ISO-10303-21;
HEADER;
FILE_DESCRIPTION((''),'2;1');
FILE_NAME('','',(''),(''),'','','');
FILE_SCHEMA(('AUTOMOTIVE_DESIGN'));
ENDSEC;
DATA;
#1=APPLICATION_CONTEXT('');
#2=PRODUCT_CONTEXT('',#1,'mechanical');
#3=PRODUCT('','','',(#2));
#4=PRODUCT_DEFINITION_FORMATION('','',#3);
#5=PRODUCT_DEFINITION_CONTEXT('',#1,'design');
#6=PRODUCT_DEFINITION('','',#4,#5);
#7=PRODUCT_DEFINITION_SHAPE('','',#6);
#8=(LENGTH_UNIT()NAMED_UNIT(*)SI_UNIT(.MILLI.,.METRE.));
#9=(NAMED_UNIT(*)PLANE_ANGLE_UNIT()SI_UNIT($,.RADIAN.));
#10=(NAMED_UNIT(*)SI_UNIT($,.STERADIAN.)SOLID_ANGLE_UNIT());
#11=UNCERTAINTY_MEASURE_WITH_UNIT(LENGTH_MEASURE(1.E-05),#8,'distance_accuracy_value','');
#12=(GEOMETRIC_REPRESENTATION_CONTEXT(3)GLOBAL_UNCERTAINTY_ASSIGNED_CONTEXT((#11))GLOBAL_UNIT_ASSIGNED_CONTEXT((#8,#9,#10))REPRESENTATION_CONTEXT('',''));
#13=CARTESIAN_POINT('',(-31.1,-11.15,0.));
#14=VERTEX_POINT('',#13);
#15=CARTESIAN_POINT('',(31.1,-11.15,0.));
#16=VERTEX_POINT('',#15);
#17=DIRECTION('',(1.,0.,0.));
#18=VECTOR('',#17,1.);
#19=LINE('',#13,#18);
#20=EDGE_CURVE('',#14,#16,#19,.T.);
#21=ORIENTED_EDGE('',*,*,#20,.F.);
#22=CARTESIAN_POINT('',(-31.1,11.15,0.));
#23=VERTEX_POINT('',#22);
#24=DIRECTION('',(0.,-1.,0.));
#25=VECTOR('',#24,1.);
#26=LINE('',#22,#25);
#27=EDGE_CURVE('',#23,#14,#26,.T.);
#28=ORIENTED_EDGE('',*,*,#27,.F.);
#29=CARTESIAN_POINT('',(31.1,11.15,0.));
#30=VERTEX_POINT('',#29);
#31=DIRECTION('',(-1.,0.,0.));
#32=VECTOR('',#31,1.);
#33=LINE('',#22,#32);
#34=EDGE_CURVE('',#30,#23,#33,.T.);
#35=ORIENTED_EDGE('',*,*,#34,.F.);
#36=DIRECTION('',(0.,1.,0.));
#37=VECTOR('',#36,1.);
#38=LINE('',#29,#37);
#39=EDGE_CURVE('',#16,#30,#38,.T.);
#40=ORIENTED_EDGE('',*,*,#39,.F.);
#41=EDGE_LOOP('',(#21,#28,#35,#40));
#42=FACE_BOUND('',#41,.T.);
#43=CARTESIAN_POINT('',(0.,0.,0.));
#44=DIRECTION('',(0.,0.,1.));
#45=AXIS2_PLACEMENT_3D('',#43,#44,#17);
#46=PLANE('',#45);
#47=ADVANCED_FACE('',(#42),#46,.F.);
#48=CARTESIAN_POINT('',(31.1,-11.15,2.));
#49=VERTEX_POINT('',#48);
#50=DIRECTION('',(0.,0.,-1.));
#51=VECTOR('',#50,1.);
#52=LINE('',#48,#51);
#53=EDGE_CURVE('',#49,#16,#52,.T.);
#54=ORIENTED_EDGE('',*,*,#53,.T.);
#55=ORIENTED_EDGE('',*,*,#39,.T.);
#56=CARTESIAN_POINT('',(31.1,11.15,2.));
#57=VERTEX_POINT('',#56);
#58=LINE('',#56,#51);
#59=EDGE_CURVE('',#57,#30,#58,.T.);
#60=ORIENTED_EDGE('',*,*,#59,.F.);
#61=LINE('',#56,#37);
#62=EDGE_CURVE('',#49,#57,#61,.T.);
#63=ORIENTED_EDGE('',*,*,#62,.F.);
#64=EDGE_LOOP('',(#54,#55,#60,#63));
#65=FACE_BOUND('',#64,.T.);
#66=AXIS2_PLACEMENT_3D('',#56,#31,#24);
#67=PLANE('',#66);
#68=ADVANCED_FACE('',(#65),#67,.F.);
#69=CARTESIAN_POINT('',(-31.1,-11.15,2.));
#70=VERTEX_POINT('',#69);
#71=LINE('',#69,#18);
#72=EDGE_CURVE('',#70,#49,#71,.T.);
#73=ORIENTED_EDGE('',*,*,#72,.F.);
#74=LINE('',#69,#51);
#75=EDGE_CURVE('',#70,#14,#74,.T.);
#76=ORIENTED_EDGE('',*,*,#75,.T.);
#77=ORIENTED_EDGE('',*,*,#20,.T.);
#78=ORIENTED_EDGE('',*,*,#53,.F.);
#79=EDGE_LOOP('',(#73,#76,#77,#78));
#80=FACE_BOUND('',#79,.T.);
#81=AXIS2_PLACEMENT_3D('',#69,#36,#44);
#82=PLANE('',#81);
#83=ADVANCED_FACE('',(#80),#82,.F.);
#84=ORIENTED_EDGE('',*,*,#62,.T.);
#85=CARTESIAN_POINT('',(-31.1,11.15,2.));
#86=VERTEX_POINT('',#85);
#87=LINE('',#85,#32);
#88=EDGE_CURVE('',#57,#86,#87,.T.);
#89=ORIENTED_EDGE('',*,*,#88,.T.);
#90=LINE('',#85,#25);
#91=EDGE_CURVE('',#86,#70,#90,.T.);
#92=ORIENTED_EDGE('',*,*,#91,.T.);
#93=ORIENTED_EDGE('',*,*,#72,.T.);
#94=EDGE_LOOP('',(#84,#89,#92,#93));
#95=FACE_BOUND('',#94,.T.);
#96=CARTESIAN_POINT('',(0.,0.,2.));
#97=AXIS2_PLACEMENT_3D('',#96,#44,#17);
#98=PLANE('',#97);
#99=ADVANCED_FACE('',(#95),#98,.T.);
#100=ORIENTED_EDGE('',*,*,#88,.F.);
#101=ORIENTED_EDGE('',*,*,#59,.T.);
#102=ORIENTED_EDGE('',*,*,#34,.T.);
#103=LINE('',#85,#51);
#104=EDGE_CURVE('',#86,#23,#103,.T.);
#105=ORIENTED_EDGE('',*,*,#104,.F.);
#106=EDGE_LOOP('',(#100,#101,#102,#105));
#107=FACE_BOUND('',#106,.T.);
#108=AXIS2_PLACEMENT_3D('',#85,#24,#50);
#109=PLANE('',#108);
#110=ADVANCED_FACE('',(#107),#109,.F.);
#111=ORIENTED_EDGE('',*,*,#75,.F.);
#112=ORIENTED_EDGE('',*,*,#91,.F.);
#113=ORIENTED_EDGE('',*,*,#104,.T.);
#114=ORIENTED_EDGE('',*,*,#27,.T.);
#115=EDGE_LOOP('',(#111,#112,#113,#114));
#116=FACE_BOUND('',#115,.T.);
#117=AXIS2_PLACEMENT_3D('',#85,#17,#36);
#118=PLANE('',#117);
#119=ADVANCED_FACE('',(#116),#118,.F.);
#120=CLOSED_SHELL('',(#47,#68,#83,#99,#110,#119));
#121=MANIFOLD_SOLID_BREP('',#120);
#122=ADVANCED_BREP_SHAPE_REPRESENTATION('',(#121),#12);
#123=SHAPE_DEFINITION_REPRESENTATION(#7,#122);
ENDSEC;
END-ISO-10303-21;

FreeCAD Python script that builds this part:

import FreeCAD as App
import Part
import Sketcher
from FreeCAD import Vector
Q = App.Units.Quantity


def add_polygon(sketch, points):
    """Adds a closed chain of lines whose ends are joined by coincident constraints."""
    first, n = sketch.GeometryCount, len(points)
    for a, b in zip(points, points[1:] + points[:1]):
        sketch.addGeometry(Part.LineSegment(App.Vector(*a, 0), App.Vector(*b, 0)), False)
    for i in range(n):
        sketch.addConstraint(Sketcher.Constraint("Coincident", first + i, 2, first + (i + 1) % n, 1))

doc = App.newDocument("Part")
body = doc.addObject("PartDesign::Body", "Body")

# Sketch on XY plane
sketch1 = doc.addObject("Sketcher::SketchObject", "Sketch")
body.addObject(sketch1)
sketch1.AttachmentSupport = (doc.XY_Plane, [""])
sketch1.MapMode = "FlatFace"
add_polygon(sketch1, [(-31.1, 11.15), (-31.1, -11.15), (31.1, -11.15), (31.1, 11.15)])  # lines 0-3
sketch1.addConstraint(Sketcher.Constraint("Vertical", 0))
sketch1.addConstraint(Sketcher.Constraint("Horizontal", 1))
sketch1.addConstraint(Sketcher.Constraint("Vertical", 2))
sketch1.addConstraint(Sketcher.Constraint("Horizontal", 3))
sketch1.addConstraint(Sketcher.Constraint("Symmetric", 0, 2, 2, 2, -1, 1))
sketch1.addConstraint(Sketcher.Constraint("DistanceX", 1, 1, 1, 2, Q("62.2 mm")))
sketch1.addConstraint(Sketcher.Constraint("DistanceY", 0, 2, 0, 1, Q("22.3 mm")))
pad1 = doc.addObject("PartDesign::Pad", "Pad")
body.addObject(pad1)
pad1.Profile = sketch1
pad1.Length = 2

doc.recompute()
